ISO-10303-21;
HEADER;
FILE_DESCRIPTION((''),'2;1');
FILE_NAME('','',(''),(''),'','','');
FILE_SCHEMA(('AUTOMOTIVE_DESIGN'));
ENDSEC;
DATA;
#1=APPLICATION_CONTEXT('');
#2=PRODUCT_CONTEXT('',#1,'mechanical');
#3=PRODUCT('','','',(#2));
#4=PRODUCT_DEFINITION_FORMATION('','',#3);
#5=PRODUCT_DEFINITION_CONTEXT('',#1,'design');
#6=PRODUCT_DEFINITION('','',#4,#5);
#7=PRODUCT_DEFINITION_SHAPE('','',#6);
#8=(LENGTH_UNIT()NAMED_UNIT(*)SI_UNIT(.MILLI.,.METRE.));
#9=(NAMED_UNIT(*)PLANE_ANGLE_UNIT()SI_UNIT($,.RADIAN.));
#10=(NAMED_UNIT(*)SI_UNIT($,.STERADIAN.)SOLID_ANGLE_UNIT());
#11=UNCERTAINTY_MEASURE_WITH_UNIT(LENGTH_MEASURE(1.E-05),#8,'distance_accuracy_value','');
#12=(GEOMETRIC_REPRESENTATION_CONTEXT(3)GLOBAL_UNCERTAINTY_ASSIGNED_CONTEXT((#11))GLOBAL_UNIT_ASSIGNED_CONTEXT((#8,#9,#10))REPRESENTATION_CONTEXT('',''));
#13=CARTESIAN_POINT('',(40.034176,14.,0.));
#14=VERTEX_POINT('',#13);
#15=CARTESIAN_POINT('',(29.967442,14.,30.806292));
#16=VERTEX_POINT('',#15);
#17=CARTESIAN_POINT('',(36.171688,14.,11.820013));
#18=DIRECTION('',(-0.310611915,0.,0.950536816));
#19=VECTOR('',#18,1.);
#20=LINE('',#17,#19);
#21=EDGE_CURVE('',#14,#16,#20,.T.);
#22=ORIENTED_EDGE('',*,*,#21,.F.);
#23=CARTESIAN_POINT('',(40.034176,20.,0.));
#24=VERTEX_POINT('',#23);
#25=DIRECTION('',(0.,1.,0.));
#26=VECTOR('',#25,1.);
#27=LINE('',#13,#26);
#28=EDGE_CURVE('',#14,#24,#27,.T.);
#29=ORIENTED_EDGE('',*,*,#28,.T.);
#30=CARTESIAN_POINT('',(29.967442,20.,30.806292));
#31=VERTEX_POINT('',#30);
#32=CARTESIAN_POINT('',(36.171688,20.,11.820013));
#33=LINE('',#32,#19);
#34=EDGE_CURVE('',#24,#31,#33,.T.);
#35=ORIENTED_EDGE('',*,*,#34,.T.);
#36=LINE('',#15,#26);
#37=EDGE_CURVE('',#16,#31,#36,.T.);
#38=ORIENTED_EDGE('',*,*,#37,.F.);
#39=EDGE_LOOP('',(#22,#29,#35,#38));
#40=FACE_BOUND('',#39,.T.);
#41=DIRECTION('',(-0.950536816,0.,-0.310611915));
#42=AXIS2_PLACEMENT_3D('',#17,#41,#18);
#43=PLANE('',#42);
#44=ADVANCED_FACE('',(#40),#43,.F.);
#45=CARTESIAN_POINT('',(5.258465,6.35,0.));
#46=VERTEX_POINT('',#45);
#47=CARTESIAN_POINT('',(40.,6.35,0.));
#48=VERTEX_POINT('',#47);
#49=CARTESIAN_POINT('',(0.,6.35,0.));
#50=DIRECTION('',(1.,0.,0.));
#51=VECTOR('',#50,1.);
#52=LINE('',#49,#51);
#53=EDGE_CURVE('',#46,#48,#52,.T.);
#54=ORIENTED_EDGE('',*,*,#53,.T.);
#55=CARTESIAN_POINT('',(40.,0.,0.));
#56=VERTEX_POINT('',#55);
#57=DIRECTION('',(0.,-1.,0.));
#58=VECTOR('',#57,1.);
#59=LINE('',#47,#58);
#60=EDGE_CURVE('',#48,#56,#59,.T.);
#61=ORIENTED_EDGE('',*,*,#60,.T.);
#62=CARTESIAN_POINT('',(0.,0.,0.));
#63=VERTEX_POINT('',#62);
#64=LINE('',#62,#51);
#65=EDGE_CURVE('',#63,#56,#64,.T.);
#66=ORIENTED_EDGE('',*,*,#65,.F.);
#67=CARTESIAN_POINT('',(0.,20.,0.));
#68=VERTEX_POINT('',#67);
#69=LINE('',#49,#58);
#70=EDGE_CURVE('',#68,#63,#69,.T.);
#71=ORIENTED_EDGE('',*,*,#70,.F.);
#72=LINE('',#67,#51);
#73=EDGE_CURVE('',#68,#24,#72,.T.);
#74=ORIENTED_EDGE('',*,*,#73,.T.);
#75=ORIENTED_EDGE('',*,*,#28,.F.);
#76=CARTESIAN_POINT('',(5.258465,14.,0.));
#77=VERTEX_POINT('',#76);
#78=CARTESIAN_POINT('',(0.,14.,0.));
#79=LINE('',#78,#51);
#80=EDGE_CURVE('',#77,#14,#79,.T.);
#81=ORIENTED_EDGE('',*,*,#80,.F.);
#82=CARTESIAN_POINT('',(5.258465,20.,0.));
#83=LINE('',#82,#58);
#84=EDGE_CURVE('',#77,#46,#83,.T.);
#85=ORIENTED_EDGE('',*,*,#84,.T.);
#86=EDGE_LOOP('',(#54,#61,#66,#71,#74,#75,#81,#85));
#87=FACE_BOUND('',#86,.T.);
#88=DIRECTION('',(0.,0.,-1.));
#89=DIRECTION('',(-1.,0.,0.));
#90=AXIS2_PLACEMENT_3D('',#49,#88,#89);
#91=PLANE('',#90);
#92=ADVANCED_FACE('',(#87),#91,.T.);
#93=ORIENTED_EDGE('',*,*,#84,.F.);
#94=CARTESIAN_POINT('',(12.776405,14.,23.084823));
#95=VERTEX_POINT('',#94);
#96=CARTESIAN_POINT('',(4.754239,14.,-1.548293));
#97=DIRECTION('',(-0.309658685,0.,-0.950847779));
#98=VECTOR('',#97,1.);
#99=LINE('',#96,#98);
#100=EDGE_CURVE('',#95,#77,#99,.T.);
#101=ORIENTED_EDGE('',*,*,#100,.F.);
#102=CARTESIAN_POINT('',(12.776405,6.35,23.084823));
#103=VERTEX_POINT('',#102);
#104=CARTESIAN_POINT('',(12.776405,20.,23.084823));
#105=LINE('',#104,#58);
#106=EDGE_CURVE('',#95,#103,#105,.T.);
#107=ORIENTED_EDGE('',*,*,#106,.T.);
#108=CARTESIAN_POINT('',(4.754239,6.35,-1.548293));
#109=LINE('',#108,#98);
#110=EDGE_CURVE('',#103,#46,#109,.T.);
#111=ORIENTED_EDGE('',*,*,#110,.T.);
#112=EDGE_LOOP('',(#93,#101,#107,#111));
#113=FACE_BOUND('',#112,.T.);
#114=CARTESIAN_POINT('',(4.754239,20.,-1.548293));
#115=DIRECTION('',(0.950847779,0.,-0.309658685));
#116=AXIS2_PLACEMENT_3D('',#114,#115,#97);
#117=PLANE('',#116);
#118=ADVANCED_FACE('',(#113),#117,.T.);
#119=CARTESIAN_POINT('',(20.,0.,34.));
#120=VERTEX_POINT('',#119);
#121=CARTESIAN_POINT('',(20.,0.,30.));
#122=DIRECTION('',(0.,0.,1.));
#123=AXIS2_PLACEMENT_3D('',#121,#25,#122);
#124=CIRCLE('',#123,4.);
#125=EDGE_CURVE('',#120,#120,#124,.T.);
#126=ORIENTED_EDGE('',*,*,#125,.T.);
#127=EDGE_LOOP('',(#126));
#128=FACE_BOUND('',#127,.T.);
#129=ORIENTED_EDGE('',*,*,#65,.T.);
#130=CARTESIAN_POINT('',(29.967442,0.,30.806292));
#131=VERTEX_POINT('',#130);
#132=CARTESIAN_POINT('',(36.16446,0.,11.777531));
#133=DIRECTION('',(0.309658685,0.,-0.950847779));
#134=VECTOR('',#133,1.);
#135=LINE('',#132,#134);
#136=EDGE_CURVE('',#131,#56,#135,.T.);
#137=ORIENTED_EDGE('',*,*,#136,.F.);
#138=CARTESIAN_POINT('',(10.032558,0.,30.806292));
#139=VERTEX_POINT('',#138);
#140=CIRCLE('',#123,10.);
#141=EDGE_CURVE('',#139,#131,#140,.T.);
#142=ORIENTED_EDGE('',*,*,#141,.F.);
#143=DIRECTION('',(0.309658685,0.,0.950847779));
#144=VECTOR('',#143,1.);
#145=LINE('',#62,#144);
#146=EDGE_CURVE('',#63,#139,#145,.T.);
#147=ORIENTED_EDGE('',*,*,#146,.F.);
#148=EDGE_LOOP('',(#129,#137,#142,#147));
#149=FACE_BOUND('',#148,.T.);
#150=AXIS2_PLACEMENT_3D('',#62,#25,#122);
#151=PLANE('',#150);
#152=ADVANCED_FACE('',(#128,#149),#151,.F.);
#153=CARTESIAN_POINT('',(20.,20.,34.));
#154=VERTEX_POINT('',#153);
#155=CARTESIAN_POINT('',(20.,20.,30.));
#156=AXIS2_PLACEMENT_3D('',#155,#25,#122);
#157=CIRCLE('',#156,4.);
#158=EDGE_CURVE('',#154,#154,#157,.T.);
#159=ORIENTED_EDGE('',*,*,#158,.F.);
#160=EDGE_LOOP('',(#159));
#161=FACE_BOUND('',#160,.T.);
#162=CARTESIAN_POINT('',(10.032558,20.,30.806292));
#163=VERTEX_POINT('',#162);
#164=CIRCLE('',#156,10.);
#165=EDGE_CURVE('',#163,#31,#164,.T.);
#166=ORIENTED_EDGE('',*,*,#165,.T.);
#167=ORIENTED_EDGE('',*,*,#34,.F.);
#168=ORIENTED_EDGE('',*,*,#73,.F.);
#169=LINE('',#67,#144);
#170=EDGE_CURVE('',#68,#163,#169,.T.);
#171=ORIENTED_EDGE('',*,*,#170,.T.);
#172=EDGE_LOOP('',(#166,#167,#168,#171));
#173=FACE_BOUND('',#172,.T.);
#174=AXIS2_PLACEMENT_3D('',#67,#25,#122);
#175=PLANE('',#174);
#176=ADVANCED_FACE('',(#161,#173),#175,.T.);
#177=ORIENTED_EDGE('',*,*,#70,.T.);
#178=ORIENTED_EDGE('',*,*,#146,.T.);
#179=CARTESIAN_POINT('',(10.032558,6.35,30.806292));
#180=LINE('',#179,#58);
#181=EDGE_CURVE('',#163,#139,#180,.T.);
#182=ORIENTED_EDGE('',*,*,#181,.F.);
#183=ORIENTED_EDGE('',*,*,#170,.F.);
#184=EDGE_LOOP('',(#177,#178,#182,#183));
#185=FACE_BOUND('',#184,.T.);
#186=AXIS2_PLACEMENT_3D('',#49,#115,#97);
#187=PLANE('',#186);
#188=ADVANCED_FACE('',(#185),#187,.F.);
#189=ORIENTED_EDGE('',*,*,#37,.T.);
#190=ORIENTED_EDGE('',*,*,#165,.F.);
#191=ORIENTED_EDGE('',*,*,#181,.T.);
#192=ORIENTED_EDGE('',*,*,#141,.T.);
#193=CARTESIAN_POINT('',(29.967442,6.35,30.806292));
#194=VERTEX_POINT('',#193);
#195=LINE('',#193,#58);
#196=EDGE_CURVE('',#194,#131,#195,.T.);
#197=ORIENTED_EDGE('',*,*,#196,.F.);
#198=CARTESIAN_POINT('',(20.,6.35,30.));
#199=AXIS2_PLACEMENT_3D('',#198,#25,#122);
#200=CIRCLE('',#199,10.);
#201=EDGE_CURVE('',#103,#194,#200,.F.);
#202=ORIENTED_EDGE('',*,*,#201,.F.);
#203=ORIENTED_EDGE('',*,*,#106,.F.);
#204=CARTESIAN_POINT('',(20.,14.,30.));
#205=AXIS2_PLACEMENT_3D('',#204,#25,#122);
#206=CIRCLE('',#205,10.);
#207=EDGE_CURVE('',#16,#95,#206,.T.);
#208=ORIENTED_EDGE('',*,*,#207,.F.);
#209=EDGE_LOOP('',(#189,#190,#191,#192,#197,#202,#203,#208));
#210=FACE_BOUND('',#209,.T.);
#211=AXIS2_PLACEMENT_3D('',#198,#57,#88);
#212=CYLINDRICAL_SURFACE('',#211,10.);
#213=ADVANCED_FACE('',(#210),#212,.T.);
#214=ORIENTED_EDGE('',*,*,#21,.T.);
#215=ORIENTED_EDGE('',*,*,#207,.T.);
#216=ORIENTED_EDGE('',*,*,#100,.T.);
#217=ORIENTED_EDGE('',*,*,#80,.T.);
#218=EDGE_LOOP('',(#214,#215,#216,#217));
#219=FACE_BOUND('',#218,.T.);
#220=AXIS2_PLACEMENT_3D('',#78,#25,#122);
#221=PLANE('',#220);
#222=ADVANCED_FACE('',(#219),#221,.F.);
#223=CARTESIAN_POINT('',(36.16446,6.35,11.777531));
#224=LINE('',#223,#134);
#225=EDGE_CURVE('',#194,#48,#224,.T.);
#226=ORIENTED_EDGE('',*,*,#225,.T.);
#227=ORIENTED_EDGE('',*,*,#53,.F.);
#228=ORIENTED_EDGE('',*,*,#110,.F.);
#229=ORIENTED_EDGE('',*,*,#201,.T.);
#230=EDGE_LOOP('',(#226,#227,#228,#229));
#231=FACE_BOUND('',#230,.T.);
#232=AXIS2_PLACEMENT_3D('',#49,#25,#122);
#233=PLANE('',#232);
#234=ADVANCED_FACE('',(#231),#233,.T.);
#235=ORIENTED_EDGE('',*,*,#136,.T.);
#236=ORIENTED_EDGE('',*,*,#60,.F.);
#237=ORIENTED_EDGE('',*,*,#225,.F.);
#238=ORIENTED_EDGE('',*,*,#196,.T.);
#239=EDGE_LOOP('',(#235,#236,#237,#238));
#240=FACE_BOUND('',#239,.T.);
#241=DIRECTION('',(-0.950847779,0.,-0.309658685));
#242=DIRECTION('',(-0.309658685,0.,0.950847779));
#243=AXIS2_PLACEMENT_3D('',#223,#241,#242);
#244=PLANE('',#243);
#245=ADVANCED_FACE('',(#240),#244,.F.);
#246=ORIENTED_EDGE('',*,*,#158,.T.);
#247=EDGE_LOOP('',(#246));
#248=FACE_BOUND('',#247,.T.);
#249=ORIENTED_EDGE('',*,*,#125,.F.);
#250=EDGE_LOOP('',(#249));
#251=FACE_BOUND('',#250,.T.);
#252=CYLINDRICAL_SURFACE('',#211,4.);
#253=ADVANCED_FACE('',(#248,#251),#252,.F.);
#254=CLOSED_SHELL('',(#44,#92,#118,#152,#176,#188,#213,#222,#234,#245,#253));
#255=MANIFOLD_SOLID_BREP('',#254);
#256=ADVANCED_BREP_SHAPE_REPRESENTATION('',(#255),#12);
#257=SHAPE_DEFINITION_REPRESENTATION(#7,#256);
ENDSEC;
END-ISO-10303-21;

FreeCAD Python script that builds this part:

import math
import FreeCAD as App
import Part
import Sketcher
from FreeCAD import Vector

doc = App.newDocument("Part")
params = doc.addObject("Spreadsheet::Sheet", "Params")
for row, (alias, value) in enumerate([
    ("sketch1_diameter", "8 mm"),
    ("sketch1_radius", "10 mm"),
    ("sketch1_width", "40 mm"),
    ("pad1_length", "6.35 mm"),
    ("sketch2_diameter", "8 mm"),
    ("sketch2_radius", "10 mm"),
    ("pad2_length", "20 mm"),
    ("sketch3_radius", "10 mm"),
    ("pad3_length", "6 mm"),
], start=1):
    params.set(f"A{row}", alias)
    params.set(f"B{row}", "=" + value)
    params.setAlias(f"B{row}", alias)

body = doc.addObject("PartDesign::Body", "Body")

# Sketch on XZ plane
sketch1 = body.newObject("Sketcher::SketchObject", "Sketch")
sketch1.AttachmentSupport = (doc.getObject("XZ_Plane"), [""])
sketch1.MapMode = "FlatFace"
sketch1.addGeometry([
    Part.LineSegment(Vector(0, 0, 0), Vector(10, 30.8, 0)),  # 0
    Part.ArcOfCircle(Part.Circle(Vector(20, 30, 0), Vector(0, 0, 1), 10), math.radians(5), math.radians(175)),  # 1
    Part.LineSegment(Vector(30, 30.8, 0), Vector(40, 0, 0)),  # 2
    Part.LineSegment(Vector(40, 0, 0), Vector(0, 0, 0)),  # 3
    Part.Circle(Vector(20, 30, 0), Vector(0, 0, 1), 4),  # 4
], False)
sketch1.addConstraint([
    Sketcher.Constraint("Coincident", 0, 2, 1, 2),
    Sketcher.Constraint("Coincident", 1, 1, 2, 1),
    Sketcher.Constraint("Coincident", 2, 2, 3, 1),
    Sketcher.Constraint("Coincident", 3, 2, 0, 1),
    Sketcher.Constraint("Horizontal", 3),
    Sketcher.Constraint("Coincident", 3, 2, -1, 1),
    Sketcher.Constraint("Coincident", 4, 3, 1, 3),
    Sketcher.Constraint("Horizontal", 0, 2, 1, 1),
    Sketcher.Constraint("Equal", 0, 2),
    Sketcher.Constraint("Diameter", 4, 8.0),
    Sketcher.Constraint("Radius", 1, 10.0),
    Sketcher.Constraint("DistanceX", 3, 2, 3, 1, 40.0),
    Sketcher.Constraint("DistanceY", -1, 1, 1, 3, 30.0),
    Sketcher.Constraint("DistanceX", -1, 1, 0, 2, 10.032558),
])
sketch1.setExpression("Constraints[9]", "Params.sketch1_diameter")
sketch1.setExpression("Constraints[10]", "Params.sketch1_radius")
sketch1.setExpression("Constraints[11]", "Params.sketch1_width")
pad1 = body.newObject("PartDesign::Pad", "Pad")
pad1.Profile = sketch1
pad1.setExpression("Length", "Params.pad1_length")
pad1.Reversed = True

# Sketch on XZ plane
sketch2 = body.newObject("Sketcher::SketchObject", "Sketch001")
sketch2.AttachmentSupport = (doc.getObject("XZ_Plane"), [""])
sketch2.MapMode = "FlatFace"
sketch2.addGeometry([
    Part.LineSegment(Vector(12.8, 23.1, 0), Vector(5.3, 0, 0)),  # 0
    Part.LineSegment(Vector(5.3, 0, 0), Vector(0, 0, 0)),  # 1
    Part.LineSegment(Vector(0, 0, 0), Vector(10, 30.8, 0)),  # 2
    Part.ArcOfCircle(Part.Circle(Vector(20, 30, 0), Vector(0, 0, 1), 10), math.radians(-136), math.radians(175)),  # 3
    Part.Circle(Vector(20, 30, 0), Vector(0, 0, 1), 4),  # 4
], False)
sketch2.addConstraint([
    Sketcher.Constraint("Coincident", 0, 2, 1, 1),
    Sketcher.Constraint("Coincident", 1, 2, 2, 1),
    Sketcher.Constraint("Coincident", 2, 2, 3, 2),
    Sketcher.Constraint("Coincident", 3, 1, 0, 1),
    Sketcher.Constraint("Horizontal", 1),
    Sketcher.Constraint("Coincident", 1, 2, -1, 1),
    Sketcher.Constraint("Coincident", 4, 3, 3, 3),
    Sketcher.Constraint("Parallel", 0, 2),
    Sketcher.Constraint("Diameter", 4, 8.0),
    Sketcher.Constraint("Radius", 3, 10.0),
    Sketcher.Constraint("DistanceX", -1, 1, 3, 3, 20.0),
    Sketcher.Constraint("DistanceY", -1, 1, 3, 3, 30.0),
    Sketcher.Constraint("Distance", 0, 24.278148),
    Sketcher.Constraint("DistanceX", 1, 2, 1, 1, 5.258465),
])
sketch2.setExpression("Constraints[8]", "Params.sketch2_diameter")
sketch2.setExpression("Constraints[9]", "Params.sketch2_radius")
pad2 = body.newObject("PartDesign::Pad", "Pad001")
pad2.Profile = sketch2
pad2.setExpression("Length", "Params.pad2_length")
pad2.Reversed = True

# Sketch on XZ plane
sketch3 = body.newObject("Sketcher::SketchObject", "Sketch002")
sketch3.AttachmentSupport = (doc.getObject("XZ_Plane"), [""])
sketch3.MapMode = "FlatFace"
sketch3.AttachmentOffset = App.Placement(Vector(0, 0, -14), App.Rotation())
sketch3.addGeometry([
    Part.LineSegment(Vector(40, 0, 0), Vector(0, 0, 0)),  # 0
    Part.LineSegment(Vector(0, 0, 0), Vector(10, 30.8, 0)),  # 1
    Part.ArcOfCircle(Part.Circle(Vector(20, 30, 0), Vector(0, 0, 1), 10), math.radians(175), math.radians(360)),  # 2
    Part.ArcOfCircle(Part.Circle(Vector(20, 30, 0), Vector(0, 0, 1), 10), math.radians(0), math.radians(4.62)),  # 3
    Part.LineSegment(Vector(30, 30.8, 0), Vector(40, 0, 0)),  # 4
], False)
sketch3.addConstraint([
    Sketcher.Constraint("Coincident", 0, 2, 1, 1),
    Sketcher.Constraint("Coincident", 1, 2, 2, 1),
    Sketcher.Constraint("Tangent", 2, 2, 3, 1),
    Sketcher.Constraint("Coincident", 3, 2, 4, 1),
    Sketcher.Constraint("Coincident", 4, 2, 0, 1),
    Sketcher.Constraint("Horizontal", 0),
    Sketcher.Constraint("Coincident", 0, 2, -1, 1),
    Sketcher.Constraint("Equal", 2, 3),
    Sketcher.Constraint("Horizontal", 3, 3, 2, 2),
    Sketcher.Constraint("Horizontal", 1, 2, 3, 2),
    Sketcher.Constraint("Radius", 2, 10.0),
    Sketcher.Constraint("DistanceX", -1, 1, 2, 3, 20.0),
    Sketcher.Constraint("DistanceY", -1, 1, 2, 3, 30.0),
    Sketcher.Constraint("Distance", 4, 32.409362),
    Sketcher.Constraint("DistanceX", 0, 2, 0, 1, 40.034176),
])
sketch3.setExpression("Constraints[10]", "Params.sketch3_radius")
pad3 = body.newObject("PartDesign::Pad", "Pad002")
pad3.Profile = sketch3
pad3.setExpression("Length", "Params.pad3_length")
pad3.Reversed = True

doc.recompute()
